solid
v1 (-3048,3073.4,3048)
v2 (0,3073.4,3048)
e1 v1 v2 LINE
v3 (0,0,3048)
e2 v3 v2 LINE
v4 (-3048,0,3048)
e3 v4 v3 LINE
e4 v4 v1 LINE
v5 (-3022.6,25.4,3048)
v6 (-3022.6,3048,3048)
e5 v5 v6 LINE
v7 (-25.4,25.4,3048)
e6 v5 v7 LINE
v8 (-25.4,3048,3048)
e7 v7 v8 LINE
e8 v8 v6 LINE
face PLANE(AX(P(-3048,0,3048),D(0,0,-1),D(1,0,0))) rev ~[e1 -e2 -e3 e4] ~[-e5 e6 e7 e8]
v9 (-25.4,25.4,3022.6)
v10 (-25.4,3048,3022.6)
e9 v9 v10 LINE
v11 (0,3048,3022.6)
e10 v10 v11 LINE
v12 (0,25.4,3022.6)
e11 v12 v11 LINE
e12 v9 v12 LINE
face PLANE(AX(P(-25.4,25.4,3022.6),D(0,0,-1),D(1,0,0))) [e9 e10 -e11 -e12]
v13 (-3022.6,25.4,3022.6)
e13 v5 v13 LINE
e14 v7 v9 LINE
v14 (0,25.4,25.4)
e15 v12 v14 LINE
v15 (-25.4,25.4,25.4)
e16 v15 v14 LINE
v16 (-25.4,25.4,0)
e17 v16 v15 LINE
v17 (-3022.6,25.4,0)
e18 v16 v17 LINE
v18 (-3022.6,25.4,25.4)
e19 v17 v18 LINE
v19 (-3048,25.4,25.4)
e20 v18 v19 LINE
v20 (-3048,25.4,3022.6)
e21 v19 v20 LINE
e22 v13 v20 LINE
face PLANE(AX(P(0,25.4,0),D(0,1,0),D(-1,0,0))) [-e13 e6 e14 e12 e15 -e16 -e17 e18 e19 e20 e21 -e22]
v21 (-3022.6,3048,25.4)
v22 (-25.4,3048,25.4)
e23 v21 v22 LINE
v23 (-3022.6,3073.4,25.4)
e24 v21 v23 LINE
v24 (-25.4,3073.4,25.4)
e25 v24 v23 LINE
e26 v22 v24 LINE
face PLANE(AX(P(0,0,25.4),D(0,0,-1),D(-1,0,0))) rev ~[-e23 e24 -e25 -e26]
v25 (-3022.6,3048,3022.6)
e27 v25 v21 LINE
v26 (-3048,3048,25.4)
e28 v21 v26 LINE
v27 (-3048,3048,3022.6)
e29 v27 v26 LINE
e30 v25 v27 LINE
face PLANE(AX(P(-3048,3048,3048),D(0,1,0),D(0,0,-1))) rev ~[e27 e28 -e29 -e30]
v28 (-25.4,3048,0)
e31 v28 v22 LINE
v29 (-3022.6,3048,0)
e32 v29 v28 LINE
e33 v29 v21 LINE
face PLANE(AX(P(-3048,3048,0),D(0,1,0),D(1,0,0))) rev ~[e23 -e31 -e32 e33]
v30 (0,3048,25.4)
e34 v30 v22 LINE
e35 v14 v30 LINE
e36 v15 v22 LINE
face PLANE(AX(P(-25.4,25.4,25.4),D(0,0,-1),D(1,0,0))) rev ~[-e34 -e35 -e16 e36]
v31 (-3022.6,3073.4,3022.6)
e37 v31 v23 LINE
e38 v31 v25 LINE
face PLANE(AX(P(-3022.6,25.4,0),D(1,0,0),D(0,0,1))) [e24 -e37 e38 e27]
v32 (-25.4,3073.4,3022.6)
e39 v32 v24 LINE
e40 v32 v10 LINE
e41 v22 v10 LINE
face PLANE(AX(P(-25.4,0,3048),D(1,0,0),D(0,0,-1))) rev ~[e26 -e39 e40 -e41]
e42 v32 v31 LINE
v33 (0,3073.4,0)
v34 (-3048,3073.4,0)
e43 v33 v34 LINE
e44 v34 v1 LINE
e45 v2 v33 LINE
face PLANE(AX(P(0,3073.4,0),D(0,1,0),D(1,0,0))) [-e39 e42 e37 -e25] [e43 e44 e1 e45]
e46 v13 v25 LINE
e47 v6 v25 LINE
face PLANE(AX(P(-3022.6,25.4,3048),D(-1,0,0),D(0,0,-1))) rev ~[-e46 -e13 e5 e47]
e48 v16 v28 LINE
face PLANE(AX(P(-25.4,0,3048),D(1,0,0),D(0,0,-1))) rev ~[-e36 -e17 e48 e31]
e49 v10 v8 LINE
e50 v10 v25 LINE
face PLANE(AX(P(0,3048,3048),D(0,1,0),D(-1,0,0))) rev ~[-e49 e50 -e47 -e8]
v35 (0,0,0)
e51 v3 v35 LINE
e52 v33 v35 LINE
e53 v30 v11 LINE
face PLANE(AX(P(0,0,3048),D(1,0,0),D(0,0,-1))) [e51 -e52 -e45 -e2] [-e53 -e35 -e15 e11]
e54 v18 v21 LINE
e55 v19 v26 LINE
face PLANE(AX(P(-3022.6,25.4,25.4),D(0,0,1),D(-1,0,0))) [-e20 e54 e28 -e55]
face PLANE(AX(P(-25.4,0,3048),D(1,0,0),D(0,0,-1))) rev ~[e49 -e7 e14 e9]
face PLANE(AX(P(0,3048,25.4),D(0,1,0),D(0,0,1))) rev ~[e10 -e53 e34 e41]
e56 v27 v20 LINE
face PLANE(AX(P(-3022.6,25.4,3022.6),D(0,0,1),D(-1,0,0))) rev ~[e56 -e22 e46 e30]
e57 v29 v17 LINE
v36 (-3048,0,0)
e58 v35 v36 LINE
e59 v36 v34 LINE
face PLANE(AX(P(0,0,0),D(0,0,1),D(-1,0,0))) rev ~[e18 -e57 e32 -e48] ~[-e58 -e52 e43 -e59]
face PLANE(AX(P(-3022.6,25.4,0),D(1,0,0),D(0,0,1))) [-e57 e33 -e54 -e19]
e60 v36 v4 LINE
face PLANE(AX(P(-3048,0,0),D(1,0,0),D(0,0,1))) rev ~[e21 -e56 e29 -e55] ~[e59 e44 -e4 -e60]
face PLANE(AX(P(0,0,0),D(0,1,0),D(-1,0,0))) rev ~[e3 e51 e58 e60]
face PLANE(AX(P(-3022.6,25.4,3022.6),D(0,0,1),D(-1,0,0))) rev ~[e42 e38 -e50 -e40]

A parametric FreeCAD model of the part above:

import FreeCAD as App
import Part
import Sketcher
from FreeCAD import Vector
Q = App.Units.Quantity

doc = App.newDocument("Part")
body = doc.addObject("PartDesign::Body", "Body")

sketch1 = doc.addObject("Sketcher::SketchObject", "Sketch")
body.addObject(sketch1)
sketch1.AttachmentSupport = (doc.XZ_Plane, [""])
sketch1.MapMode = "FlatFace"
sketch1.addGeometry([
    Part.LineSegment(Vector(0, 3048, 0), Vector(0, 0, 0)),
    Part.LineSegment(Vector(0, 0, 0), Vector(-3048, 0, 0)),
    Part.LineSegment(Vector(-3048, 0, 0), Vector(-3048, 3048, 0)),
    Part.LineSegment(Vector(-3048, 3048, 0), Vector(0, 3048, 0)),
], False)
sketch1.addConstraint([
    Sketcher.Constraint("Coincident", 0, 2, 1, 1),
    Sketcher.Constraint("Coincident", 1, 2, 2, 1),
    Sketcher.Constraint("Coincident", 2, 2, 3, 1),
    Sketcher.Constraint("Coincident", 3, 2, 0, 1),
    Sketcher.Constraint("Vertical", 0),
    Sketcher.Constraint("Horizontal", 1),
    Sketcher.Constraint("Vertical", 2),
    Sketcher.Constraint("Horizontal", 3),
    Sketcher.Constraint("Coincident", 0, 2, -1, 1),
    Sketcher.Constraint("Equal", 3, 0),
    Sketcher.Constraint("DistanceX", 1, 2, 1, 1, Q("120 in")),
])
pad1 = doc.addObject("PartDesign::Pad", "Pad")
body.addObject(pad1)
pad1.Profile = sketch1
pad1.Length = Q("1 in")
pad1.Reversed = True

sketch2 = doc.addObject("Sketcher::SketchObject", "Sketch001")
body.addObject(sketch2)
sketch2.AttachmentSupport = (doc.XZ_Plane, [""])
sketch2.MapMode = "FlatFace"
sketch2.AttachmentOffset = App.Placement(Vector(0, 0, -1 * 25.4), App.Rotation())
sketch2.addGeometry([
    Part.LineSegment(Vector(-3023, 0, 0), Vector(-3048, 0, 0)),
    Part.LineSegment(Vector(-3048, 0, 0), Vector(-3048, 25, 0)),
    Part.LineSegment(Vector(-3048, 25, 0), Vector(-3023, 25, 0)),
    Part.LineSegment(Vector(-3023, 25, 0), Vector(-3023, 0, 0)),
    Part.LineSegment(Vector(0, 25, 0), Vector(0, 0, 0)),
    Part.LineSegment(Vector(0, 0, 0), Vector(-25, 0, 0)),
    Part.LineSegment(Vector(-25, 0, 0), Vector(-25, 25, 0)),
    Part.LineSegment(Vector(-25, 25, 0), Vector(0, 25, 0)),
    Part.LineSegment(Vector(-3048, 3023, 0), Vector(-3048, 3048, 0)),
    Part.LineSegment(Vector(-3048, 3048, 0), Vector(-3023, 3048, 0)),
    Part.LineSegment(Vector(-3023, 3048, 0), Vector(-3023, 3023, 0)),
    Part.LineSegment(Vector(-3023, 3023, 0), Vector(-3048, 3023, 0)),
    Part.LineSegment(Vector(-25, 3048, 0), Vector(0, 3048, 0)),
    Part.LineSegment(Vector(0, 3048, 0), Vector(0, 3023, 0)),
    Part.LineSegment(Vector(0, 3023, 0), Vector(-25, 3023, 0)),
    Part.LineSegment(Vector(-25, 3023, 0), Vector(-25, 3048, 0)),
], False)
sketch2.addConstraint([
    Sketcher.Constraint("Coincident", 0, 2, 1, 1),
    Sketcher.Constraint("Coincident", 1, 2, 2, 1),
    Sketcher.Constraint("Coincident", 2, 2, 3, 1),
    Sketcher.Constraint("Coincident", 3, 2, 0, 1),
    Sketcher.Constraint("Coincident", 4, 2, 5, 1),
    Sketcher.Constraint("Coincident", 5, 2, 6, 1),
    Sketcher.Constraint("Coincident", 6, 2, 7, 1),
    Sketcher.Constraint("Coincident", 7, 2, 4, 1),
    Sketcher.Constraint("Coincident", 8, 2, 9, 1),
    Sketcher.Constraint("Coincident", 9, 2, 10, 1),
    Sketcher.Constraint("Coincident", 10, 2, 11, 1),
    Sketcher.Constraint("Coincident", 11, 2, 8, 1),
    Sketcher.Constraint("Coincident", 12, 2, 13, 1),
    Sketcher.Constraint("Coincident", 13, 2, 14, 1),
    Sketcher.Constraint("Coincident", 14, 2, 15, 1),
    Sketcher.Constraint("Coincident", 15, 2, 12, 1),
    Sketcher.Constraint("Horizontal", 0),
    Sketcher.Constraint("Vertical", 1),
    Sketcher.Constraint("Horizontal", 2),
    Sketcher.Constraint("Vertical", 3),
    Sketcher.Constraint("Vertical", 4),
    Sketcher.Constraint("Horizontal", 5),
    Sketcher.Constraint("Vertical", 6),
    Sketcher.Constraint("Horizontal", 7),
    Sketcher.Constraint("Vertical", 8),
    Sketcher.Constraint("Horizontal", 9),
    Sketcher.Constraint("Vertical", 10),
    Sketcher.Constraint("Horizontal", 11),
    Sketcher.Constraint("Horizontal", 12),
    Sketcher.Constraint("Vertical", 13),
    Sketcher.Constraint("Horizontal", 14),
    Sketcher.Constraint("Vertical", 15),
    Sketcher.Constraint("Coincident", 4, 2, -1, 1),
    Sketcher.Constraint("PointOnObject", 0, 2, -1),
    Sketcher.Constraint("PointOnObject", 12, 2, -2),
    Sketcher.Constraint("Horizontal", 2, 2, 6, 2),
    Sketcher.Constraint("Horizontal", 9, 2, 12, 2),
    Sketcher.Constraint("Horizontal", 11, 2, 13, 2),
    Sketcher.Constraint("Vertical", 1, 2, 8, 2),
    Sketcher.Constraint("Vertical", 3, 2, 9, 2),
    Sketcher.Constraint("Vertical", 6, 2, 14, 2),
    Sketcher.Constraint("Equal", 2, 5),
    Sketcher.Constraint("Equal", 14, 1),
    Sketcher.Constraint("Equal", 6, 8),
    Sketcher.Constraint("DistanceX", 0, 2, 0, 1, Q("1 in")),
    Sketcher.Constraint("DistanceX", 0, 2, -1, 1, Q("120 in")),
    Sketcher.Constraint("DistanceY", -1, 1, 8, 2, Q("120 in")),
])
pad2 = doc.addObject("PartDesign::Pad", "Pad001")
body.addObject(pad2)
pad2.Profile = sketch2
pad2.Length = Q("120 in")
pad2.Reversed = True

sketch3 = doc.addObject("Sketcher::SketchObject", "Sketch002")
body.addObject(sketch3)
sketch3.AttachmentSupport = (doc.YZ_Plane, [""])
sketch3.MapMode = "FlatFace"
sketch3.addGeometry([
    Part.LineSegment(Vector(3048, 3048, 0), Vector(3048, 25, 0)),
    Part.LineSegment(Vector(3048, 25, 0), Vector(3073, 25, 0)),
    Part.LineSegment(Vector(3073, 25, 0), Vector(3073, 3048, 0)),
    Part.LineSegment(Vector(3073, 3048, 0), Vector(3048, 3048, 0)),
], False)
sketch3.addConstraint([
    Sketcher.Constraint("Coincident", 0, 2, 1, 1),
    Sketcher.Constraint("Coincident", 1, 2, 2, 1),
    Sketcher.Constraint("Coincident", 2, 2, 3, 1),
    Sketcher.Constraint("Coincident", 3, 2, 0, 1),
    Sketcher.Constraint("Vertical", 0),
    Sketcher.Constraint("Horizontal", 1),
    Sketcher.Constraint("Vertical", 2),
    Sketcher.Constraint("Horizontal", 3),
    Sketcher.Constraint("DistanceX", 1, 1, 1, 2, Q("1 in")),
    Sketcher.Constraint("DistanceY", -1, 1, 0, 2, Q("1 in")),
    Sketcher.Constraint("DistanceY", 0, 2, 0, 1, Q("119 in")),
    Sketcher.Constraint("DistanceX", -1, 1, 0, 2, Q("120 in")),
])
pad3 = doc.addObject("PartDesign::Pad", "Pad002")
body.addObject(pad3)
pad3.Profile = sketch3
pad3.Length = Q("1 in")
pad3.Reversed = True

sketch4 = doc.addObject("Sketcher::SketchObject", "Sketch003")
body.addObject(sketch4)
sketch4.AttachmentSupport = (doc.XY_Plane, [""])
sketch4.MapMode = "FlatFace"
sketch4.AttachmentOffset = App.Placement(Vector(0, 0, 120 * 25.4), App.Rotation())
sketch4.addGeometry([
    Part.LineSegment(Vector(0, 3073, 0), Vector(-3048, 3073, 0)),
    Part.LineSegment(Vector(-3048, 3073, 0), Vector(-3048, 3048, 0)),
    Part.LineSegment(Vector(-3048, 3048, 0), Vector(0, 3048, 0)),
    Part.LineSegment(Vector(0, 3048, 0), Vector(0, 3073, 0)),
], False)
sketch4.addConstraint([
    Sketcher.Constraint("Coincident", 0, 2, 1, 1),
    Sketcher.Constraint("Coincident", 1, 2, 2, 1),
    Sketcher.Constraint("Coincident", 2, 2, 3, 1),
    Sketcher.Constraint("Coincident", 3, 2, 0, 1),
    Sketcher.Constraint("Horizontal", 0),
    Sketcher.Constraint("Vertical", 1),
    Sketcher.Constraint("Horizontal", 2),
    Sketcher.Constraint("Vertical", 3),
    Sketcher.Constraint("PointOnObject", 2, 2, -2),
    Sketcher.Constraint("DistanceX", 0, 2, 0, 1, Q("120 in")),
    Sketcher.Constraint("DistanceY", 1, 2, 1, 1, Q("1 in")),
    Sketcher.Constraint("DistanceY", -1, 1, 1, 2, Q("120 in")),
])
pad4 = doc.addObject("PartDesign::Pad", "Pad003")
body.addObject(pad4)
pad4.Profile = sketch4
pad4.Length = Q("1 in")
pad4.Reversed = True

sketch5 = doc.addObject("Sketcher::SketchObject", "Sketch004")
body.addObject(sketch5)
sketch5.AttachmentSupport = (doc.YZ_Plane, [""])
sketch5.MapMode = "FlatFace"
sketch5.AttachmentOffset = App.Placement(Vector(0, 0, -120 * 25.4), App.Rotation())
sketch5.addGeometry([
    Part.LineSegment(Vector(3073, 3048, 0), Vector(3073, 0, 0)),
    Part.LineSegment(Vector(3073, 0, 0), Vector(3048, 0, 0)),
    Part.LineSegment(Vector(3048, 0, 0), Vector(3048, 3048, 0)),
    Part.LineSegment(Vector(3048, 3048, 0), Vector(3073, 3048, 0)),
], False)
sketch5.addConstraint([
    Sketcher.Constraint("Coincident", 0, 2, 1, 1),
    Sketcher.Constraint("Coincident", 1, 2, 2, 1),
    Sketcher.Constraint("Coincident", 2, 2, 3, 1),
    Sketcher.Constraint("Coincident", 3, 2, 0, 1),
    Sketcher.Constraint("Vertical", 0),
    Sketcher.Constraint("Horizontal", 1),
    Sketcher.Constraint("Vertical", 2),
    Sketcher.Constraint("Horizontal", 3),
    Sketcher.Constraint("PointOnObject", 0, 2, -1),
    Sketcher.Constraint("DistanceX", 1, 2, 1, 1, Q("1 in")),
    Sketcher.Constraint("DistanceY", 0, 2, 0, 1, Q("120 in")),
    Sketcher.Constraint("DistanceX", -1, 1, 1, 2, Q("120 in")),
])
pad5 = doc.addObject("PartDesign::Pad", "Pad004")
body.addObject(pad5)
pad5.Profile = sketch5
pad5.Length = Q("1 in")

sketch6 = doc.addObject("Sketcher::SketchObject", "Sketch005")
body.addObject(sketch6)
sketch6.AttachmentSupport = (doc.XY_Plane, [""])
sketch6.MapMode = "FlatFace"
sketch6.addGeometry([
    Part.LineSegment(Vector(-3048, 3073, 0), Vector(0, 3073, 0)),
    Part.LineSegment(Vector(0, 3073, 0), Vector(0, 3048, 0)),
    Part.LineSegment(Vector(0, 3048, 0), Vector(-3048, 3048, 0)),
    Part.LineSegment(Vector(-3048, 3048, 0), Vector(-3048, 3073, 0)),
], False)
sketch6.addConstraint([
    Sketcher.Constraint("Coincident", 0, 2, 1, 1),
    Sketcher.Constraint("Coincident", 1, 2, 2, 1),
    Sketcher.Constraint("Coincident", 2, 2, 3, 1),
    Sketcher.Constraint("Coincident", 3, 2, 0, 1),
    Sketcher.Constraint("Horizontal", 0),
    Sketcher.Constraint("Vertical", 1),
    Sketcher.Constraint("Horizontal", 2),
    Sketcher.Constraint("Vertical", 3),
    Sketcher.Constraint("PointOnObject", 0, 2, -2),
    Sketcher.Constraint("DistanceX", 0, 1, 0, 2, Q("120 in")),
    Sketcher.Constraint("DistanceY", 1, 2, 1, 1, Q("1 in")),
    Sketcher.Constraint("DistanceY", -1, 1, 1, 2, Q("120 in")),
])
pad6 = doc.addObject("PartDesign::Pad", "Pad005")
body.addObject(pad6)
pad6.Profile = sketch6
pad6.Length = Q("1 in")

doc.recompute()
